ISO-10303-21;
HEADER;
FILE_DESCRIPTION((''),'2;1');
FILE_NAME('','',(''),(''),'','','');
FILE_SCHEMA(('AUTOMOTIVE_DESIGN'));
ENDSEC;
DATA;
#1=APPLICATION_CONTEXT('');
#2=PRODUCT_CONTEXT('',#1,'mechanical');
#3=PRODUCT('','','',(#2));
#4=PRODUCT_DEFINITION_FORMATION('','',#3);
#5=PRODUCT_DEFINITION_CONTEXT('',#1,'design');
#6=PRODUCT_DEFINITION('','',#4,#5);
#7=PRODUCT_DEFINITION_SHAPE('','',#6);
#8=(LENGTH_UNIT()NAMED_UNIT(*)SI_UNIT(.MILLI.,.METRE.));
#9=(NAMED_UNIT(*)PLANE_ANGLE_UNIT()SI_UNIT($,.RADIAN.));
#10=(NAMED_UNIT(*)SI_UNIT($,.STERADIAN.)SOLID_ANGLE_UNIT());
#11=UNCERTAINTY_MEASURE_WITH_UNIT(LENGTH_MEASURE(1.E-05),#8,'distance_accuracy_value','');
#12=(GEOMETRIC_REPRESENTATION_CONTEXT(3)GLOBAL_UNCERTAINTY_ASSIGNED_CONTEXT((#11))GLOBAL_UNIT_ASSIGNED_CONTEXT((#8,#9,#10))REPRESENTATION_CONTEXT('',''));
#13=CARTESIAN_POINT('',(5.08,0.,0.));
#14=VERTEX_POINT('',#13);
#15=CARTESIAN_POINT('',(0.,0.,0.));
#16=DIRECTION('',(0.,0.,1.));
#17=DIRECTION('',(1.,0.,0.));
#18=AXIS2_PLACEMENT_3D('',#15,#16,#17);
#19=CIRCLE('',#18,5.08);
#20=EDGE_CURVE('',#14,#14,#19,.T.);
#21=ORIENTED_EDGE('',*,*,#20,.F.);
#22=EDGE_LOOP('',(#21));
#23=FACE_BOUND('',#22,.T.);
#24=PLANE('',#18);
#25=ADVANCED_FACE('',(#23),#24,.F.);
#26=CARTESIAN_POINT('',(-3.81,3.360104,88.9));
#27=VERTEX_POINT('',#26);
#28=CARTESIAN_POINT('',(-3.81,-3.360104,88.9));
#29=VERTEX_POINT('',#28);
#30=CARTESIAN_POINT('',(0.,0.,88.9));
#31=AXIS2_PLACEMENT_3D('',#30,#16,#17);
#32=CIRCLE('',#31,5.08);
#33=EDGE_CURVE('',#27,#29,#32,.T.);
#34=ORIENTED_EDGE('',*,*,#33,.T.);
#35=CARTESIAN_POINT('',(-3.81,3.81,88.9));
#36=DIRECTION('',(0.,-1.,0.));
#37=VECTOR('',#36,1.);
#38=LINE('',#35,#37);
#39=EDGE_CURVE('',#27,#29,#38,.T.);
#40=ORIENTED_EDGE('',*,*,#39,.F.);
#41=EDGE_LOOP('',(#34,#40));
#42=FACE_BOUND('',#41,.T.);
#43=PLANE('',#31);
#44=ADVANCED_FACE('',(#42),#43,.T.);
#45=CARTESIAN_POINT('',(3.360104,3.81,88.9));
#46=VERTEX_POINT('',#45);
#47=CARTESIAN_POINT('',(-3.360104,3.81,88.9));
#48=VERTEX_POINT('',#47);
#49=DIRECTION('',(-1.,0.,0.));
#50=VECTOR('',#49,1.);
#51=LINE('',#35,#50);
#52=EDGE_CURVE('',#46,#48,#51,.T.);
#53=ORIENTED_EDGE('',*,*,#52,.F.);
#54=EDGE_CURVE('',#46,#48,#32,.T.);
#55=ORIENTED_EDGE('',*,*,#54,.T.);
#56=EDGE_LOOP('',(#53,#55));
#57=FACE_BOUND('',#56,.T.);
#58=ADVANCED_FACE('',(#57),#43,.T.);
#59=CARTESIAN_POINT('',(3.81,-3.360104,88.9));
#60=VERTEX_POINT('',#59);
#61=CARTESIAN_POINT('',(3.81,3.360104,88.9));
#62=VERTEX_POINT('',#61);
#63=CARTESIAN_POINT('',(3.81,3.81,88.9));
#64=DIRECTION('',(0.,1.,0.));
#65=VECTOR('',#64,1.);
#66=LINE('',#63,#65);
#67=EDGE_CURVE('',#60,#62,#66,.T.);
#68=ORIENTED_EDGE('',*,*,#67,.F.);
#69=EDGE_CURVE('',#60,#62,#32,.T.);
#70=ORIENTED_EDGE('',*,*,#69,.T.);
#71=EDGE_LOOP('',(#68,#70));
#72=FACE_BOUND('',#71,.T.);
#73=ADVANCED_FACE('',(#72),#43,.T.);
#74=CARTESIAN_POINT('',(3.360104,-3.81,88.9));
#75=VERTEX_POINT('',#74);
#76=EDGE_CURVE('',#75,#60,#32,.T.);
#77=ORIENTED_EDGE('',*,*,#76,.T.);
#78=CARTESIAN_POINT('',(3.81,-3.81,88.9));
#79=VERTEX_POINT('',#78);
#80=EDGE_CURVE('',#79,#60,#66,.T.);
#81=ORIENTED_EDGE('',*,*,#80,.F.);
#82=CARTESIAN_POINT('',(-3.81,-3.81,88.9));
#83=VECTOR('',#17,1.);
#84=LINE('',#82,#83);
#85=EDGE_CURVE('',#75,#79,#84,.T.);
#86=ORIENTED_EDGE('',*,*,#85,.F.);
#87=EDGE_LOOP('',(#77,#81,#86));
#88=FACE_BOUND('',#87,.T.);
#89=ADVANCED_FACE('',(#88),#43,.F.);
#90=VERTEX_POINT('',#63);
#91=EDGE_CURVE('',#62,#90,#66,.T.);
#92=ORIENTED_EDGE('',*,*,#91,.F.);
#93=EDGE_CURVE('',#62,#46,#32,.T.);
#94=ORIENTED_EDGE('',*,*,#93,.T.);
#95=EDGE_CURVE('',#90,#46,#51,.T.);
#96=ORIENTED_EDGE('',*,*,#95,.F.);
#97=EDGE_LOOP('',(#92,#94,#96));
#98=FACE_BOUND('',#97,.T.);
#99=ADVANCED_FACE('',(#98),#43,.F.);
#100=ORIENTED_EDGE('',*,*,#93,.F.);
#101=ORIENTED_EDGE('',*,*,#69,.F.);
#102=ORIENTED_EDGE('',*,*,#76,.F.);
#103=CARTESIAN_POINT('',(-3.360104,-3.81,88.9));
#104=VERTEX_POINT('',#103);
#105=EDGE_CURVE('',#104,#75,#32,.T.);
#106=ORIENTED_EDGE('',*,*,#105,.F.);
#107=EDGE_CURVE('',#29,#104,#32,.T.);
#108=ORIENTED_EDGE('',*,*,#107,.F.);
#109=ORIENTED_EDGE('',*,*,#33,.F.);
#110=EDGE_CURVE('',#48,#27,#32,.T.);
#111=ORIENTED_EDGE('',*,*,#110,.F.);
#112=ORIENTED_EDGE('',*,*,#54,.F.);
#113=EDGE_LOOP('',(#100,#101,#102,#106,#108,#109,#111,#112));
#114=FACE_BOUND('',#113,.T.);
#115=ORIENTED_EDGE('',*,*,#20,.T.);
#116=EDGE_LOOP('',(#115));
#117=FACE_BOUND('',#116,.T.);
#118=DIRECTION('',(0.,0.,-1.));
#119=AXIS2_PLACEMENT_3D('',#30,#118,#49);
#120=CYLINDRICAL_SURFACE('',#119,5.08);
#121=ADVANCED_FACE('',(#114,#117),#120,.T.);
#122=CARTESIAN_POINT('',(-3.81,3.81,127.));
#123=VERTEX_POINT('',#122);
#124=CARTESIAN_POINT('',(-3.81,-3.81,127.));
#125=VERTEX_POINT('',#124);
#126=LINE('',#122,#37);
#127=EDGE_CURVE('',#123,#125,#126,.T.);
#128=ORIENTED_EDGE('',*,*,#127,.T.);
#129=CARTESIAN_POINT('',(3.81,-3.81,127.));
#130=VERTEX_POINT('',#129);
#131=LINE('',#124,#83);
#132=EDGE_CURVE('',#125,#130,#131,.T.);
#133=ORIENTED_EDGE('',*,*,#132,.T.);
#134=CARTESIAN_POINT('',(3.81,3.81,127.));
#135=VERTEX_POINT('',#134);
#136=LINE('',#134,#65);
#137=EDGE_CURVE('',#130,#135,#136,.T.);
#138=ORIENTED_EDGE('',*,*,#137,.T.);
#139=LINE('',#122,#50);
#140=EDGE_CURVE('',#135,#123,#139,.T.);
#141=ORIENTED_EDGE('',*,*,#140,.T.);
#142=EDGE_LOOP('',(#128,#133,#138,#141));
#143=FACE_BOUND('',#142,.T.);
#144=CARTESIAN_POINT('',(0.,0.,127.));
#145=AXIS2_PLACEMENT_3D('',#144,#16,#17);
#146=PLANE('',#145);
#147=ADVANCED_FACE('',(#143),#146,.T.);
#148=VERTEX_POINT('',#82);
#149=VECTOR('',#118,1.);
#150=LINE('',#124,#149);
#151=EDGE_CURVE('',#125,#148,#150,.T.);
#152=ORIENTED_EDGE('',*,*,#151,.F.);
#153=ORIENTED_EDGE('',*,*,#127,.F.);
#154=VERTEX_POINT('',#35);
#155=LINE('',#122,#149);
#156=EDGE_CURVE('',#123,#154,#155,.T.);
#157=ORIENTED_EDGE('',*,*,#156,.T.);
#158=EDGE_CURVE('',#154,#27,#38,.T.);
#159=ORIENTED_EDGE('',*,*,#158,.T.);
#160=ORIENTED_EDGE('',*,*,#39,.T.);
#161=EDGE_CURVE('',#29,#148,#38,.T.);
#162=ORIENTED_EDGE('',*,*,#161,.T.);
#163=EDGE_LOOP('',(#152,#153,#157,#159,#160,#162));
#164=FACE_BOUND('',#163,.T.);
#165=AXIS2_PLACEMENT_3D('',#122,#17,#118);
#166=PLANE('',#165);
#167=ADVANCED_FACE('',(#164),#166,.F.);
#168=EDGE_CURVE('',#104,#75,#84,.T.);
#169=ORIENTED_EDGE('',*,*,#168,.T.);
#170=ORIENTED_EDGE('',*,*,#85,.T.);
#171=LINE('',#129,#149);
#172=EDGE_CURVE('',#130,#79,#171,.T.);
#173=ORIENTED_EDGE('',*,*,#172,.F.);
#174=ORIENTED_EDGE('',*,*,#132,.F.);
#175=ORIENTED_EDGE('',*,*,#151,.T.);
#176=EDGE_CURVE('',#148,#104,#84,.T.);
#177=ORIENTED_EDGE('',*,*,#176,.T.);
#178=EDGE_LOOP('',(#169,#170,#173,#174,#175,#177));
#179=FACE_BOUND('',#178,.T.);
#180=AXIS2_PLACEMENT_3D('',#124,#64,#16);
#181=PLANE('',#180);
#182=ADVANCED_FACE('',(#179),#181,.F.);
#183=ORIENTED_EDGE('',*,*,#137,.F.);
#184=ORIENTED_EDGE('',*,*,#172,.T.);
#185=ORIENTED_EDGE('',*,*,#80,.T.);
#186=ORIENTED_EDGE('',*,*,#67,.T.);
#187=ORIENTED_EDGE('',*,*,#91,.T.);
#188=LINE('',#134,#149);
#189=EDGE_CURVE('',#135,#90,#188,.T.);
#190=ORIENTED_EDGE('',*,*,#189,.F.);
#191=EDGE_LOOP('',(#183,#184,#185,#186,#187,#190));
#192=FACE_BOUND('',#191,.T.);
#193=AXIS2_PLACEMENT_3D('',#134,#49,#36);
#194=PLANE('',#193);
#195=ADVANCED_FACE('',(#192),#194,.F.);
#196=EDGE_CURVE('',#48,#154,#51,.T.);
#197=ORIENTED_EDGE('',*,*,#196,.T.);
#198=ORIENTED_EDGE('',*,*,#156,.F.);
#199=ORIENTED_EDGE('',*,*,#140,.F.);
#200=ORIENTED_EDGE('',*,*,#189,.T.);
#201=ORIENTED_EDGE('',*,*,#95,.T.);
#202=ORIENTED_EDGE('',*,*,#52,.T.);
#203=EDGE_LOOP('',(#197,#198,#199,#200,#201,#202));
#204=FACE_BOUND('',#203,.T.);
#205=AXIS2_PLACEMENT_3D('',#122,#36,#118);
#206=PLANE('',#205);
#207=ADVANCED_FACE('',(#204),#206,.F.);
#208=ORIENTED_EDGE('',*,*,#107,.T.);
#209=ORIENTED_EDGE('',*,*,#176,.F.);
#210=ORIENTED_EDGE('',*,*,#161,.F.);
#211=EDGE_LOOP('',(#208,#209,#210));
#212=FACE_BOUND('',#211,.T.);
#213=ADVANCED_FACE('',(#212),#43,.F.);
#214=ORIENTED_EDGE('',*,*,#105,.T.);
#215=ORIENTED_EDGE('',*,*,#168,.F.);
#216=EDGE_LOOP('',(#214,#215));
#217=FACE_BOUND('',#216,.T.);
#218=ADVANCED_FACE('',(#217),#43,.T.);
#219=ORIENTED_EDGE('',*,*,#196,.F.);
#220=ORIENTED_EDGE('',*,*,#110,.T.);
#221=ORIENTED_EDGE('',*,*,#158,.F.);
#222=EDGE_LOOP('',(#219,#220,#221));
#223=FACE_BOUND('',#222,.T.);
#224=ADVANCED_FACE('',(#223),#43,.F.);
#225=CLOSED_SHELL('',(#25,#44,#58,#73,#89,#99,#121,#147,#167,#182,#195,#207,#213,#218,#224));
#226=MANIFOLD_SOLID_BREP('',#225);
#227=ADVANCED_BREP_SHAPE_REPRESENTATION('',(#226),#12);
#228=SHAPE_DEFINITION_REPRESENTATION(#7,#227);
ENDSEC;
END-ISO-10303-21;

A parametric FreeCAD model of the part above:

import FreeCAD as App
import Part
import Sketcher

V = App.Vector
Q = App.Units.Quantity

doc = App.newDocument("Part")
params = doc.addObject("Spreadsheet::Sheet", "Params")
for row, (alias, value) in enumerate([
    ("sketch1_diameter", "0.4 in"),
    ("pad1_length", "3.5 in"),
    ("sketch2_width", "0.3 in"),
    ("pad2_length", "1.5 in"),
], start=1):
    params.set(f"A{row}", alias)
    params.set(f"B{row}", "=" + value)
    params.setAlias(f"B{row}", alias)

body = doc.addObject("PartDesign::Body", "Body")

# Sketch on XY plane
sketch1 = body.newObject("Sketcher::SketchObject", "Sketch")
sketch1.AttachmentSupport = (doc.getObject("XY_Plane"), [""])
sketch1.MapMode = "FlatFace"
sketch1.addGeometry(Part.Circle(V(0, 0, 0), V(0, 0, 1), 5), False)
sketch1.addConstraint(Sketcher.Constraint("Coincident", 0, 3, -1, 1))
sketch1.addConstraint(Sketcher.Constraint("Diameter", 0, Q("0.4 in")))
sketch1.setExpression("Constraints[1]", "Params.sketch1_diameter")
pad1 = body.newObject("PartDesign::Pad", "Pad")
pad1.Profile = sketch1
pad1.setExpression("Length", "Params.pad1_length")

# Sketch on XY plane
sketch2 = body.newObject("Sketcher::SketchObject", "Sketch001")
sketch2.AttachmentSupport = (doc.getObject("XY_Plane"), [""])
sketch2.MapMode = "FlatFace"
sketch2.AttachmentOffset = App.Placement(V(0, 0, 3.5 * 25.4), App.Rotation())
sketch2.addGeometry(Part.LineSegment(V(-4, 4, 0), V(-4, -4, 0)), False)
sketch2.addGeometry(Part.LineSegment(V(-4, -4, 0), V(4, -4, 0)), False)
sketch2.addGeometry(Part.LineSegment(V(4, -4, 0), V(4, 4, 0)), False)
sketch2.addGeometry(Part.LineSegment(V(4, 4, 0), V(-4, 4, 0)), False)
sketch2.addConstraint(Sketcher.Constraint("Coincident", 0, 2, 1, 1))
sketch2.addConstraint(Sketcher.Constraint("Coincident", 1, 2, 2, 1))
sketch2.addConstraint(Sketcher.Constraint("Coincident", 2, 2, 3, 1))
sketch2.addConstraint(Sketcher.Constraint("Coincident", 3, 2, 0, 1))
sketch2.addConstraint(Sketcher.Constraint("Vertical", 0))
sketch2.addConstraint(Sketcher.Constraint("Horizontal", 1))
sketch2.addConstraint(Sketcher.Constraint("Vertical", 2))
sketch2.addConstraint(Sketcher.Constraint("Horizontal", 3))
sketch2.addConstraint(Sketcher.Constraint("Symmetric", 0, 2, 2, 2, -1, 1))
sketch2.addConstraint(Sketcher.Constraint("Equal", 3, 0))
sketch2.addConstraint(Sketcher.Constraint("DistanceX", 1, 1, 1, 2, Q("0.3 in")))
sketch2.setExpression("Constraints[10]", "Params.sketch2_width")
pad2 = body.newObject("PartDesign::Pad", "Pad001")
pad2.Profile = sketch2
pad2.setExpression("Length", "Params.pad2_length")

doc.recompute()
